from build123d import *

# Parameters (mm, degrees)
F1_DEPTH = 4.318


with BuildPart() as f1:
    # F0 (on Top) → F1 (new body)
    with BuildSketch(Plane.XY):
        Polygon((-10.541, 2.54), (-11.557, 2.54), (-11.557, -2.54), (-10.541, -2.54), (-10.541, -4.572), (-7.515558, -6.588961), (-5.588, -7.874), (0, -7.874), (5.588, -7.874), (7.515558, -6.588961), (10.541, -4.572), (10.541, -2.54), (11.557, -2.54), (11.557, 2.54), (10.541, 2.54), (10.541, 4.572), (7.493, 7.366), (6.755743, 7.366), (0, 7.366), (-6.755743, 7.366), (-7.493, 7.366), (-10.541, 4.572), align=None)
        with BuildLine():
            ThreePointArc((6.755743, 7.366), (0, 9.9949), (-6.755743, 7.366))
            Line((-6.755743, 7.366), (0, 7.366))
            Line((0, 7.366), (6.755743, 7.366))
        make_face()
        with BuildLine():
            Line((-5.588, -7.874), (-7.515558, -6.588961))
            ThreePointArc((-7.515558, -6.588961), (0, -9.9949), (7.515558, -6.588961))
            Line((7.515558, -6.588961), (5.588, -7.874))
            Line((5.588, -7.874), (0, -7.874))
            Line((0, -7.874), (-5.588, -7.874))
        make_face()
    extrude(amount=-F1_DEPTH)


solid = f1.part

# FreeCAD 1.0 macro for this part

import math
import FreeCAD as App
import Part
import Sketcher
from FreeCAD import Vector
Q = App.Units.Quantity

doc = App.newDocument("Part")
body = doc.addObject("PartDesign::Body", "Body")

# Sketch on XY plane
sketch1 = body.newObject("Sketcher::SketchObject", "Sketch")
sketch1.AttachmentSupport = (doc.getObject("XY_Plane"), [""])
sketch1.MapMode = "FlatFace"
sketch1.addGeometry([
    Part.LineSegment(Vector(-10.5, 2.5, 0), Vector(-11.6, 2.5, 0)),  # 0
    Part.LineSegment(Vector(-11.6, 2.5, 0), Vector(-11.6, -2.5, 0)),  # 1
    Part.LineSegment(Vector(-11.6, -2.5, 0), Vector(-10.5, -2.5, 0)),  # 2
    Part.LineSegment(Vector(-10.5, -2.5, 0), Vector(-10.5, -4.6, 0)),  # 3
    Part.LineSegment(Vector(-10.5, -4.6, 0), Vector(-7.5, -6.6, 0)),  # 4
    Part.ArcOfCircle(Part.Circle(Vector(0, 0, 0), Vector(0, 0, 1), 10), math.radians(-139), math.radians(-41)),  # 5
    Part.LineSegment(Vector(7.5, -6.6, 0), Vector(10.5, -4.6, 0)),  # 6
    Part.LineSegment(Vector(10.5, -4.6, 0), Vector(10.5, -2.5, 0)),  # 7
    Part.LineSegment(Vector(10.5, -2.5, 0), Vector(11.6, -2.5, 0)),  # 8
    Part.LineSegment(Vector(11.6, -2.5, 0), Vector(11.6, 2.5, 0)),  # 9
    Part.LineSegment(Vector(11.6, 2.5, 0), Vector(10.5, 2.5, 0)),  # 10
    Part.LineSegment(Vector(10.5, 2.5, 0), Vector(10.5, 4.6, 0)),  # 11
    Part.LineSegment(Vector(10.5, 4.6, 0), Vector(7.5, 7.4, 0)),  # 12
    Part.LineSegment(Vector(7.5, 7.4, 0), Vector(6.8, 7.4, 0)),  # 13
    Part.ArcOfCircle(Part.Circle(Vector(0, 0, 0), Vector(0, 0, 1), 10), math.radians(47), math.radians(133)),  # 14
    Part.LineSegment(Vector(-6.8, 7.4, 0), Vector(-7.5, 7.4, 0)),  # 15
    Part.LineSegment(Vector(-7.5, 7.4, 0), Vector(-10.5, 4.6, 0)),  # 16
    Part.LineSegment(Vector(-10.5, 4.6, 0), Vector(-10.5, 2.5, 0)),  # 17
], False)
sketch1.addConstraint([
    Sketcher.Constraint("Coincident", 0, 2, 1, 1),
    Sketcher.Constraint("Coincident", 1, 2, 2, 1),
    Sketcher.Constraint("Coincident", 2, 2, 3, 1),
    Sketcher.Constraint("Coincident", 3, 2, 4, 1),
    Sketcher.Constraint("Coincident", 4, 2, 5, 1),
    Sketcher.Constraint("Coincident", 5, 2, 6, 1),
    Sketcher.Constraint("Coincident", 6, 2, 7, 1),
    Sketcher.Constraint("Coincident", 7, 2, 8, 1),
    Sketcher.Constraint("Coincident", 8, 2, 9, 1),
    Sketcher.Constraint("Coincident", 9, 2, 10, 1),
    Sketcher.Constraint("Coincident", 10, 2, 11, 1),
    Sketcher.Constraint("Coincident", 11, 2, 12, 1),
    Sketcher.Constraint("Coincident", 12, 2, 13, 1),
    Sketcher.Constraint("Coincident", 13, 2, 14, 1),
    Sketcher.Constraint("Coincident", 14, 2, 15, 1),
    Sketcher.Constraint("Coincident", 15, 2, 16, 1),
    Sketcher.Constraint("Coincident", 16, 2, 17, 1),
    Sketcher.Constraint("Coincident", 17, 2, 0, 1),
    Sketcher.Constraint("Horizontal", 0),
    Sketcher.Constraint("Vertical", 1),
    Sketcher.Constraint("Horizontal", 2),
    Sketcher.Constraint("Vertical", 3),
    Sketcher.Constraint("Vertical", 7),
    Sketcher.Constraint("Horizontal", 8),
    Sketcher.Constraint("Vertical", 9),
    Sketcher.Constraint("Horizontal", 10),
    Sketcher.Constraint("Vertical", 11),
    Sketcher.Constraint("Horizontal", 13),
    Sketcher.Constraint("Horizontal", 15),
    Sketcher.Constraint("Vertical", 17),
    Sketcher.Constraint("Coincident", 5, 3, -1, 1),
    Sketcher.Constraint("Coincident", 14, 3, -1, 1),
    Sketcher.Constraint("Equal", 5, 14),
    Sketcher.Constraint("Symmetric", 0, 2, 8, 2, -1, 1),
    Sketcher.Constraint("Symmetric", 2, 2, 10, 2, -1, 1),
    Sketcher.Constraint("Symmetric", 6, 2, 16, 2, -1, 1),
    Sketcher.Constraint("Symmetric", 3, 2, 6, 2, -2),
    Sketcher.Constraint("Symmetric", 12, 2, 15, 2, -2),
    Sketcher.Constraint("Horizontal", 4, 2, 5, 2),
    Sketcher.Constraint("Horizontal", 2, 2, 7, 2),
    Sketcher.Constraint("Horizontal", 11, 2, 16, 2),
    Sketcher.Constraint("DistanceY", 1, 2, 1, 1, Q("0.2 in")),
    Sketcher.Constraint("DistanceX", 0, 2, 0, 1, Q("0.04 in")),
    Sketcher.Constraint("DistanceY", 3, 2, 3, 1, Q("0.08 in")),
    Sketcher.Constraint("Radius", 5, Q("0.3935 in")),
    Sketcher.Constraint("DistanceY", -1, 1, 12, 2, Q("0.29 in")),
    Sketcher.Constraint("DistanceX", 3, 2, 6, 2, Q("0.83 in")),
    Sketcher.Constraint("DistanceX", 12, 2, 11, 2, Q("0.12 in")),
    Sketcher.Constraint("Distance", 4, Q("3.636129 mm")),
])
pad1 = body.newObject("PartDesign::Pad", "Pad")
pad1.Profile = sketch1
pad1.Length = Q("0.17 in")
pad1.Reversed = True

doc.recompute()
